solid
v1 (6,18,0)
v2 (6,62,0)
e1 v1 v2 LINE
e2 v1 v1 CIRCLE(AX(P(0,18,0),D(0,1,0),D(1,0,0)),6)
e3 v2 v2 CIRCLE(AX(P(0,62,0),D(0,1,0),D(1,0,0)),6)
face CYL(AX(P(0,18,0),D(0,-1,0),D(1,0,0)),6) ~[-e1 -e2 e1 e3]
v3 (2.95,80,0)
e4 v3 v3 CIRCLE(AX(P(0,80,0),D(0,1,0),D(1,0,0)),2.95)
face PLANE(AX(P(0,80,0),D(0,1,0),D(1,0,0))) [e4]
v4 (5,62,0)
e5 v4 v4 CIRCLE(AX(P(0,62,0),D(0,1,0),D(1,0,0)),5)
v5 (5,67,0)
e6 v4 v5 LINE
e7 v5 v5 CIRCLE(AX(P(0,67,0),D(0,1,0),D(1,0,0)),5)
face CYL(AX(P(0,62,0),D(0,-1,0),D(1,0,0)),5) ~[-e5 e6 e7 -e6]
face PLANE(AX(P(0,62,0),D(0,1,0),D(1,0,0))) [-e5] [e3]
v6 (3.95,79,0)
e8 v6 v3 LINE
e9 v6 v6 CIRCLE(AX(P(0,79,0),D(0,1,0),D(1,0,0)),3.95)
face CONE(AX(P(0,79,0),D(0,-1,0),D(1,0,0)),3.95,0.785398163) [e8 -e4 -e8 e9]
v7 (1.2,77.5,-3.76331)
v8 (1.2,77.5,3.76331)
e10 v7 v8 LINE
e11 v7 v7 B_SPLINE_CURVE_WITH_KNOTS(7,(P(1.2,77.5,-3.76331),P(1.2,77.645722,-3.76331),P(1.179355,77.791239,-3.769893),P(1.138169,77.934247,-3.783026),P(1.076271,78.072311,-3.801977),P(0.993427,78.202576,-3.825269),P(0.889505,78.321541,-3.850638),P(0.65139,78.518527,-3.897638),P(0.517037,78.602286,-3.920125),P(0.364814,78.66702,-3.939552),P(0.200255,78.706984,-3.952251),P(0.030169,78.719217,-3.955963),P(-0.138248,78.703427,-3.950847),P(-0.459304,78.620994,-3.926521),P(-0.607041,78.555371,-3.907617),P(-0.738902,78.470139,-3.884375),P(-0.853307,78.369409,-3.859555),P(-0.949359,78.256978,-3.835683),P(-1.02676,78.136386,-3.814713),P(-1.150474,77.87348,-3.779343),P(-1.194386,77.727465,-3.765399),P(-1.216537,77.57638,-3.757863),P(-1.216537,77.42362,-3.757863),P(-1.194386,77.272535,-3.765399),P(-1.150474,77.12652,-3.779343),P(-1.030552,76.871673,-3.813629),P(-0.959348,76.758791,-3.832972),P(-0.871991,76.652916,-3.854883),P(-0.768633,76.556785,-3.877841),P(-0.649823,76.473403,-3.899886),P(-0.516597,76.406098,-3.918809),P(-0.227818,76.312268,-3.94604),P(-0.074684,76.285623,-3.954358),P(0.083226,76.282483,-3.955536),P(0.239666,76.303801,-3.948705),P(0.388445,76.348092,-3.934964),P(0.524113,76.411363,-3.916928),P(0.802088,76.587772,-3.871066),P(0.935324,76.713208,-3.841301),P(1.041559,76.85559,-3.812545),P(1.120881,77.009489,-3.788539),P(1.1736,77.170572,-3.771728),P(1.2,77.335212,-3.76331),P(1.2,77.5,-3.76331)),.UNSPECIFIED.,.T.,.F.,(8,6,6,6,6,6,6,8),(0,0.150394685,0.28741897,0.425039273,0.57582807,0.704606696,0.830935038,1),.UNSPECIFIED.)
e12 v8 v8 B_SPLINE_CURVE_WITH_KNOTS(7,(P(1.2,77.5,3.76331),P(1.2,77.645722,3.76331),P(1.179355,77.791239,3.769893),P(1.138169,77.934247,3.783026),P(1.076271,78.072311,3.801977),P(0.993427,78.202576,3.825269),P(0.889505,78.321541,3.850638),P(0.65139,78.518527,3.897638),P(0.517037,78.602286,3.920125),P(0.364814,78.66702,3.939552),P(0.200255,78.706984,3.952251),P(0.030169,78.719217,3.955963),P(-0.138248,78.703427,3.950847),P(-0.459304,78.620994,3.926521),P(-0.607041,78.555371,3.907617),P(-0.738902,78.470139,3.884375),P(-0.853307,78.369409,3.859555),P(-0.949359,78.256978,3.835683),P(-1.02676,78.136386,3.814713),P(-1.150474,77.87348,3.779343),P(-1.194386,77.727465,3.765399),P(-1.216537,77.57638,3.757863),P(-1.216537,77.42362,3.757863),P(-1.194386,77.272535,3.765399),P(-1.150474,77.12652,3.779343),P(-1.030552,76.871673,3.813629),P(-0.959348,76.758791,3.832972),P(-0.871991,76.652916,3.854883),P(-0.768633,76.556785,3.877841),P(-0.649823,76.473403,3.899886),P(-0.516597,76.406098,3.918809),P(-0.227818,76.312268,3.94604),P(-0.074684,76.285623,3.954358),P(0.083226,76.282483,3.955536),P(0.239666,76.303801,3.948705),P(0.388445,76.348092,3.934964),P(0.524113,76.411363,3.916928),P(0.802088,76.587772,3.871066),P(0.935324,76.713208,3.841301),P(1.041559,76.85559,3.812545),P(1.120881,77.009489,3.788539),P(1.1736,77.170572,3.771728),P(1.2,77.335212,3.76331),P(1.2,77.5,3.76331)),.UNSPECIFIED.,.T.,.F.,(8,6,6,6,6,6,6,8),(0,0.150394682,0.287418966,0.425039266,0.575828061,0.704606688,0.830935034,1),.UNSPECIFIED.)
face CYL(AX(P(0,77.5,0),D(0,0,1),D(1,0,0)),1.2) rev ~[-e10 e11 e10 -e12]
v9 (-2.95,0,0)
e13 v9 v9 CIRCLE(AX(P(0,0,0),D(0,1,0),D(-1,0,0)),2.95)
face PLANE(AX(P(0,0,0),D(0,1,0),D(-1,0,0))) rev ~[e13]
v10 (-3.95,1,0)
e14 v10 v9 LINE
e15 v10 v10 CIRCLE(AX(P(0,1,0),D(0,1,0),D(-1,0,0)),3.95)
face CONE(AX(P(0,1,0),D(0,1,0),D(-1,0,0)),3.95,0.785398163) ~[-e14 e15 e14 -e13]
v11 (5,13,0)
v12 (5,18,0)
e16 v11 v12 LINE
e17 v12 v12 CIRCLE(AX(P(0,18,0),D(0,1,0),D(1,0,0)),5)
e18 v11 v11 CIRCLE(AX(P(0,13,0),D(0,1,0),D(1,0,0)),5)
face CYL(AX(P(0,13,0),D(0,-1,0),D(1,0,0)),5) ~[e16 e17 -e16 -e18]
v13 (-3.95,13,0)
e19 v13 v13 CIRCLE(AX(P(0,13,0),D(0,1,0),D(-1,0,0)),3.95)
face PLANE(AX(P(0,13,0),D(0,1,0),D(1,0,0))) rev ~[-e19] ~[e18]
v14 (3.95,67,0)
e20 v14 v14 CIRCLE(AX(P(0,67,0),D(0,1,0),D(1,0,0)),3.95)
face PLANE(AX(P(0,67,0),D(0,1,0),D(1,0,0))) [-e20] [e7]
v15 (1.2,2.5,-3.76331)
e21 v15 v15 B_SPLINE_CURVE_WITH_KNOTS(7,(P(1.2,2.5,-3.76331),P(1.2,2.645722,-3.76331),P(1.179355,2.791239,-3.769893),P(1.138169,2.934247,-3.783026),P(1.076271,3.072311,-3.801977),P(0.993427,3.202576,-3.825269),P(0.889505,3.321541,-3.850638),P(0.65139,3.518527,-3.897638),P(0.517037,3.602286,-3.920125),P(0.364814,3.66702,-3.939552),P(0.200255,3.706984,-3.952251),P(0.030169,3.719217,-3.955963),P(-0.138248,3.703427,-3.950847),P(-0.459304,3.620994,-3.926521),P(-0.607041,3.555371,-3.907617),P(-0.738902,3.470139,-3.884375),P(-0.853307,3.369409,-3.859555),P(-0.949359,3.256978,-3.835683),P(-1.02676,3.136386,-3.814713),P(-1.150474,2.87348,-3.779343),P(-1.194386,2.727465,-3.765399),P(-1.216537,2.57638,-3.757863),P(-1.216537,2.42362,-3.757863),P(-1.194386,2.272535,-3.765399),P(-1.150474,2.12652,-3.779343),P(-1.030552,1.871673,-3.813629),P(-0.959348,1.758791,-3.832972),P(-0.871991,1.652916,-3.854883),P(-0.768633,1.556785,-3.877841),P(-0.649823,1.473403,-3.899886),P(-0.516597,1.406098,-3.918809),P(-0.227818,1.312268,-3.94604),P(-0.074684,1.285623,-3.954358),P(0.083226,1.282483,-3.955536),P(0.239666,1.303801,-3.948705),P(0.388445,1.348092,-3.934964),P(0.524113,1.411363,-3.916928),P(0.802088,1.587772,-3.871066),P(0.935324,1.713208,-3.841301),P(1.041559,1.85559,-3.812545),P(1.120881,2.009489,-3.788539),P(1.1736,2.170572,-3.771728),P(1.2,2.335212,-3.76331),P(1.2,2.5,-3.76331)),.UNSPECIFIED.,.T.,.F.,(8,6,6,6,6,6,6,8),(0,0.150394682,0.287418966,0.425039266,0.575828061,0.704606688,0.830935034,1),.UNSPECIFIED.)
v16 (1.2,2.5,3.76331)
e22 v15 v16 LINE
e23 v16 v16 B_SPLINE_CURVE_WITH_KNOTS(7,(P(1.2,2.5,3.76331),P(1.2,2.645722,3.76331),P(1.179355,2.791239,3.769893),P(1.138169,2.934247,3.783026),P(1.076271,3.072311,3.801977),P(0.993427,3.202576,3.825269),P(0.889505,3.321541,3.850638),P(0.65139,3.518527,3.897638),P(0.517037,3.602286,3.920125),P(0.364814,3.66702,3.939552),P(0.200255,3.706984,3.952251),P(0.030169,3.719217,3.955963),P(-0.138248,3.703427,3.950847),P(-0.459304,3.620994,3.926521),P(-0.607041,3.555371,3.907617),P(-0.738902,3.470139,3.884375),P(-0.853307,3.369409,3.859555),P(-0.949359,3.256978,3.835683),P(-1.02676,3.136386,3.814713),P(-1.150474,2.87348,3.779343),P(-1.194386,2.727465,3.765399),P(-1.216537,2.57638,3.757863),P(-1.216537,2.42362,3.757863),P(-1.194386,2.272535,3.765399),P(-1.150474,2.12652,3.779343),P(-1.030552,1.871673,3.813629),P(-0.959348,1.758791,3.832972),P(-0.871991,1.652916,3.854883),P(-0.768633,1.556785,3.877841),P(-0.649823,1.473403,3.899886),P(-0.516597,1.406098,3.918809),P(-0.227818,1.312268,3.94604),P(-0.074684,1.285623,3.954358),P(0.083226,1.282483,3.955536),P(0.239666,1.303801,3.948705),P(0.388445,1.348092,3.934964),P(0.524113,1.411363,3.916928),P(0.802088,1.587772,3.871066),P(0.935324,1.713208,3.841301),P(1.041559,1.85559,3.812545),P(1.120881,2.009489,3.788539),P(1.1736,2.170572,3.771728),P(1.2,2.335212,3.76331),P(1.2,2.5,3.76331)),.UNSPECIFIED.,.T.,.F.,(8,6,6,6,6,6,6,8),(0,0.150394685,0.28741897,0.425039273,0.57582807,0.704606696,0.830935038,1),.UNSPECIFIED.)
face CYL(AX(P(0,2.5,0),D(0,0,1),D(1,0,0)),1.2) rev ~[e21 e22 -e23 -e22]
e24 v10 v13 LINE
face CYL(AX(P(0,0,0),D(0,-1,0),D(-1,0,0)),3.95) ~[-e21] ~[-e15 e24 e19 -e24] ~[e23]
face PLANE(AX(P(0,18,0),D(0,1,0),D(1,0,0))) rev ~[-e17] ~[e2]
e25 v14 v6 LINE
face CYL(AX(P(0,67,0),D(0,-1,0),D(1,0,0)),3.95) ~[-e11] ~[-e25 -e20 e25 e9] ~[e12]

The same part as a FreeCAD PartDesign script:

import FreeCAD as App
import Part
import Sketcher


def edges_at(feature, points):
    """Names of the edges that pass closest to the given points."""
    edges = feature.Shape.Edges
    near = lambda p: min(range(len(edges)), key=lambda i: edges[i].distToShape(Part.Vertex(*p))[0])
    return sorted({f"Edge{near(p) + 1}" for p in points})

doc = App.newDocument("Part")
body = doc.addObject("PartDesign::Body", "Body")

# Sketch on XZ plane
sketch1 = doc.addObject("Sketcher::SketchObject", "Sketch")
body.addObject(sketch1)
sketch1.AttachmentSupport = (doc.XZ_Plane, [""])
sketch1.MapMode = "FlatFace"
sketch1.addGeometry(Part.Circle(App.Vector(0, 0, 0), App.Vector(0, 0, 1), 3.95), False)
sketch1.addConstraint(Sketcher.Constraint("Coincident", 0, 3, -1, 1))
sketch1.addConstraint(Sketcher.Constraint("Diameter", 0, 7.9))
pad1 = doc.addObject("PartDesign::Pad", "Pad")
body.addObject(pad1)
pad1.Profile = sketch1
pad1.Length = 13
pad1.Reversed = True

# Sketch on XZ plane
sketch2 = doc.addObject("Sketcher::SketchObject", "Sketch001")
body.addObject(sketch2)
sketch2.AttachmentSupport = (doc.XZ_Plane, [""])
sketch2.MapMode = "FlatFace"
sketch2.AttachmentOffset = App.Placement(App.Vector(0, 0, -13), App.Rotation())
sketch2.addGeometry(Part.Circle(App.Vector(0, 0, 0), App.Vector(0, 0, 1), 5), False)
sketch2.addConstraint(Sketcher.Constraint("Coincident", 0, 3, -1, 1))
sketch2.addConstraint(Sketcher.Constraint("Diameter", 0, 10.0))
pad2 = doc.addObject("PartDesign::Pad", "Pad001")
body.addObject(pad2)
pad2.Profile = sketch2
pad2.Length = 5
pad2.Reversed = True

# Sketch on XZ plane
sketch3 = doc.addObject("Sketcher::SketchObject", "Sketch002")
body.addObject(sketch3)
sketch3.AttachmentSupport = (doc.XZ_Plane, [""])
sketch3.MapMode = "FlatFace"
sketch3.AttachmentOffset = App.Placement(App.Vector(0, 0, -18), App.Rotation())
sketch3.addGeometry(Part.Circle(App.Vector(0, 0, 0), App.Vector(0, 0, 1), 6), False)
sketch3.addConstraint(Sketcher.Constraint("Coincident", 0, 3, -1, 1))
sketch3.addConstraint(Sketcher.Constraint("Diameter", 0, 12.0))
pad3 = doc.addObject("PartDesign::Pad", "Pad002")
body.addObject(pad3)
pad3.Profile = sketch3
pad3.Length = 44
pad3.Reversed = True

# Sketch on XZ plane
sketch4 = doc.addObject("Sketcher::SketchObject", "Sketch003")
body.addObject(sketch4)
sketch4.AttachmentSupport = (doc.XZ_Plane, [""])
sketch4.MapMode = "FlatFace"
sketch4.AttachmentOffset = App.Placement(App.Vector(0, 0, -62), App.Rotation())
sketch4.addGeometry(Part.Circle(App.Vector(0, 0, 0), App.Vector(0, 0, 1), 5), False)
sketch4.addConstraint(Sketcher.Constraint("Coincident", 0, 3, -1, 1))
sketch4.addConstraint(Sketcher.Constraint("Diameter", 0, 10.0))
pad4 = doc.addObject("PartDesign::Pad", "Pad003")
body.addObject(pad4)
pad4.Profile = sketch4
pad4.Length = 5
pad4.Reversed = True

# Sketch on XZ plane
sketch5 = doc.addObject("Sketcher::SketchObject", "Sketch004")
body.addObject(sketch5)
sketch5.AttachmentSupport = (doc.XZ_Plane, [""])
sketch5.MapMode = "FlatFace"
sketch5.AttachmentOffset = App.Placement(App.Vector(0, 0, -67), App.Rotation())
sketch5.addGeometry(Part.Circle(App.Vector(0, 0, 0), App.Vector(0, 0, 1), 3.95), False)
sketch5.addConstraint(Sketcher.Constraint("Coincident", 0, 3, -1, 1))
sketch5.addConstraint(Sketcher.Constraint("Diameter", 0, 7.9))
pad5 = doc.addObject("PartDesign::Pad", "Pad004")
body.addObject(pad5)
pad5.Profile = sketch5
pad5.Length = 13
pad5.Reversed = True

# Sketch on XY plane
sketch6 = doc.addObject("Sketcher::SketchObject", "Sketch005")
body.addObject(sketch6)
sketch6.AttachmentSupport = (doc.XY_Plane, [""])
sketch6.MapMode = "FlatFace"
sketch6.addGeometry(Part.Circle(App.Vector(0, 2.5, 0), App.Vector(0, 0, 1), 1.2), False)
sketch6.addConstraint(Sketcher.Constraint("PointOnObject", 0, 3, -2))
sketch6.addConstraint(Sketcher.Constraint("Diameter", 0, 2.4))
sketch6.addConstraint(Sketcher.Constraint("DistanceY", -1, 1, 0, 3, 2.5))
pocket1 = doc.addObject("PartDesign::Pocket", "Pocket")
body.addObject(pocket1)
pocket1.Profile = sketch6
pocket1.Type = "ThroughAll"
pocket1.Midplane = True
doc.recompute()

chamfer = doc.addObject("PartDesign::Chamfer", "Chamfer")
body.addObject(chamfer)
chamfer.Base = (pocket1, edges_at(pocket1, [(3.95, 0, 0)]))
chamfer.Size = 1

# Sketch on XY plane
sketch7 = doc.addObject("Sketcher::SketchObject", "Sketch006")
body.addObject(sketch7)
sketch7.AttachmentSupport = (doc.XY_Plane, [""])
sketch7.MapMode = "FlatFace"
sketch7.addGeometry(Part.Circle(App.Vector(0, 77.5, 0), App.Vector(0, 0, 1), 1.2), False)
sketch7.addConstraint(Sketcher.Constraint("PointOnObject", 0, 3, -2))
sketch7.addConstraint(Sketcher.Constraint("Diameter", 0, 2.4))
sketch7.addConstraint(Sketcher.Constraint("DistanceY", -1, 1, 0, 3, 77.5))
pocket2 = doc.addObject("PartDesign::Pocket", "Pocket001")
body.addObject(pocket2)
pocket2.Profile = sketch7
pocket2.Type = "ThroughAll"
pocket2.Midplane = True
doc.recompute()

chamfer2 = doc.addObject("PartDesign::Chamfer", "Chamfer001")
body.addObject(chamfer2)
chamfer2.Base = (pocket2, edges_at(pocket2, [(-3.95, 80, 0)]))
chamfer2.Size = 1

doc.recompute()
